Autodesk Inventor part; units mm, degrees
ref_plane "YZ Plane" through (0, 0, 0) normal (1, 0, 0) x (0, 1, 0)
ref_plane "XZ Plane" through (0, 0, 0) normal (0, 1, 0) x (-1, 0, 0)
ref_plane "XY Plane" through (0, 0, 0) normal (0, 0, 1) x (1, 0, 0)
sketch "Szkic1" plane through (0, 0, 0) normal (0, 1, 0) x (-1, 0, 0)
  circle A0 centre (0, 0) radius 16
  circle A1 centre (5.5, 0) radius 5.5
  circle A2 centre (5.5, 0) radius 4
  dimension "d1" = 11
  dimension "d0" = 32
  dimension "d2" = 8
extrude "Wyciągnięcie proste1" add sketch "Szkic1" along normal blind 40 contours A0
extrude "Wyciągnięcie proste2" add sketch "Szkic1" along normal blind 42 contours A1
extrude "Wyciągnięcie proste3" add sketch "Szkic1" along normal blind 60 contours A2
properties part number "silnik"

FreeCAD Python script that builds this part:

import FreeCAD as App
import Part
import Sketcher
from FreeCAD import Vector

doc = App.newDocument("Part")
body = doc.addObject("PartDesign::Body", "Body")

# Sketch on XZ plane
sketch1 = body.newObject("Sketcher::SketchObject", "Sketch")
sketch1.AttachmentSupport = (doc.getObject("XZ_Plane"), [""])
sketch1.MapMode = "FlatFace"
sketch1.addGeometry([
    Part.Circle(Vector(0, 0, 0), Vector(0, 0, 1), 16),
    Part.Circle(Vector(-6, 0, 0), Vector(0, 0, 1), 6),
], False)
sketch1.addConstraint([
    Sketcher.Constraint("Coincident", 0, 3, -1, 1),
    Sketcher.Constraint("PointOnObject", 1, 3, -1),
    Sketcher.Constraint("Diameter", 0, 32.0),
    Sketcher.Constraint("Diameter", 1, 11.0),
    Sketcher.Constraint("DistanceX", 1, 3, -1, 1, 5.5),
])
pad1 = body.newObject("PartDesign::Pad", "Pad")
pad1.Profile = sketch1
pad1.Length = 40
pad1.Reversed = True

# Sketch on XZ plane
sketch2 = body.newObject("Sketcher::SketchObject", "Sketch001")
sketch2.AttachmentSupport = (doc.getObject("XZ_Plane"), [""])
sketch2.MapMode = "FlatFace"
sketch2.addGeometry([
    Part.Circle(Vector(-5.5, 0, 0), Vector(0, 0, 1), 5.5),
    Part.Circle(Vector(-5.5, 0, 0), Vector(0, 0, 1), 4),
], False)
sketch2.addConstraint([
    Sketcher.Constraint("Coincident", 1, 3, 0, 3),
    Sketcher.Constraint("PointOnObject", 0, 3, -1),
    Sketcher.Constraint("Diameter", 0, 11.0),
    Sketcher.Constraint("Diameter", 1, 8.0),
    Sketcher.Constraint("DistanceX", 0, 3, -1, 1, 5.5),
])
pad2 = body.newObject("PartDesign::Pad", "Pad001")
pad2.Profile = sketch2
pad2.Length = 42
pad2.Reversed = True

# Sketch on XZ plane
sketch3 = body.newObject("Sketcher::SketchObject", "Sketch002")
sketch3.AttachmentSupport = (doc.getObject("XZ_Plane"), [""])
sketch3.MapMode = "FlatFace"
sketch3.addGeometry(Part.Circle(Vector(-5.5, 0, 0), Vector(0, 0, 1), 4), False)
sketch3.addConstraint([
    Sketcher.Constraint("PointOnObject", 0, 3, -1),
    Sketcher.Constraint("Diameter", 0, 8.0),
    Sketcher.Constraint("DistanceX", 0, 3, -1, 1, 5.5),
])
pad3 = body.newObject("PartDesign::Pad", "Pad002")
pad3.Profile = sketch3
pad3.Length = 60
pad3.Reversed = True

doc.recompute()
